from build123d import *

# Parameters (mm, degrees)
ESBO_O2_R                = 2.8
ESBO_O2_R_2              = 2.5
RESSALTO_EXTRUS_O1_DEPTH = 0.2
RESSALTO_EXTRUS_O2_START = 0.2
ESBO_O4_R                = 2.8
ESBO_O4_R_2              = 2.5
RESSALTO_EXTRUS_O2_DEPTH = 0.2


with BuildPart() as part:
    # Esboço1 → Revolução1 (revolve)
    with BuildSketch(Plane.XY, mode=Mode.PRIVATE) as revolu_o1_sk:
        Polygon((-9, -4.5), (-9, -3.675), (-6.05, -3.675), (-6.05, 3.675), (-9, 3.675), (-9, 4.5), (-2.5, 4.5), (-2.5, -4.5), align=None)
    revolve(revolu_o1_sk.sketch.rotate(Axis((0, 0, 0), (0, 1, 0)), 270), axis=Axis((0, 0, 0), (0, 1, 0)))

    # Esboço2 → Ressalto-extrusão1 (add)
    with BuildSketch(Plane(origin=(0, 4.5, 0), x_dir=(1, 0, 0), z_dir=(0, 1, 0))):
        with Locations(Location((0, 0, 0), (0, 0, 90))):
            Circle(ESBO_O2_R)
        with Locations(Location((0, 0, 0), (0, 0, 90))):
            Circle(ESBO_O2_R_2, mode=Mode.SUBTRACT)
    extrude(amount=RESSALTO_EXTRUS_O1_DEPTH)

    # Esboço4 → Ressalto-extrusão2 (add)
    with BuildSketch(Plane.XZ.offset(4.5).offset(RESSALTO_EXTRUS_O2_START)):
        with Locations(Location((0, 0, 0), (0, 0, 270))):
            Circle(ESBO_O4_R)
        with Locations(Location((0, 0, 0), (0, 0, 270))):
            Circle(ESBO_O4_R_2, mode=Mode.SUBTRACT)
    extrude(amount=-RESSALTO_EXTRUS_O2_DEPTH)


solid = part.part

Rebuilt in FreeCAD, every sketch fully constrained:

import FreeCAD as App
import Part
import Sketcher
Q = App.Units.Quantity


def add_polygon(sketch, points):
    """Adds a closed chain of lines whose ends are joined by coincident constraints."""
    first, n = sketch.GeometryCount, len(points)
    for a, b in zip(points, points[1:] + points[:1]):
        sketch.addGeometry(Part.LineSegment(App.Vector(*a, 0), App.Vector(*b, 0)), False)
    for i in range(n):
        sketch.addConstraint(Sketcher.Constraint("Coincident", first + i, 2, first + (i + 1) % n, 1))

doc = App.newDocument("Part")
params = doc.addObject("Spreadsheet::Sheet", "Params")
for row, (alias, value) in enumerate([
    ("sketch1_height", "9 mm"),
    ("sketch1_width", "6.5 mm"),
    ("sketch1_width2", "2.95 mm"),
    ("sketch1_height2", "7.35 mm"),
    ("revolution_angle", "360 deg"),
    ("sketch2_diameter", "5 mm"),
    ("sketch2_diameter2", "5.6 mm"),
    ("pad1_length", "0.2 mm"),
    ("sketch3_diameter", "5 mm"),
    ("sketch3_diameter2", "5.6 mm"),
    ("pad2_length", "0.2 mm"),
], start=1):
    params.set(f"A{row}", alias)
    params.set(f"B{row}", "=" + value)
    params.setAlias(f"B{row}", alias)

body = doc.addObject("PartDesign::Body", "Body")

# Sketch on XY plane
sketch1 = doc.addObject("Sketcher::SketchObject", "Sketch")
body.addObject(sketch1)
sketch1.AttachmentSupport = (doc.XY_Plane, [""])
sketch1.MapMode = "FlatFace"
add_polygon(sketch1, [(-9, -3.7), (-9, -4.5), (-2.5, -4.5), (-2.5, 4.5), (-9, 4.5), (-9, 3.7), (-6, 3.7), (-6, -3.7)])  # lines 0-7
sketch1.addConstraint(Sketcher.Constraint("Vertical", 0))
sketch1.addConstraint(Sketcher.Constraint("Horizontal", 1))
sketch1.addConstraint(Sketcher.Constraint("Vertical", 2))
sketch1.addConstraint(Sketcher.Constraint("Horizontal", 3))
sketch1.addConstraint(Sketcher.Constraint("Vertical", 4))
sketch1.addConstraint(Sketcher.Constraint("Horizontal", 5))
sketch1.addConstraint(Sketcher.Constraint("Vertical", 6))
sketch1.addConstraint(Sketcher.Constraint("Horizontal", 7))
sketch1.addConstraint(Sketcher.Constraint("Symmetric", 0, 2, 3, 2, -1))
sketch1.addConstraint(Sketcher.Constraint("Equal", 0, 4))
sketch1.addConstraint(Sketcher.Constraint("DistanceY", 2, 1, 2, 2, Q("9 mm")))
sketch1.addConstraint(Sketcher.Constraint("DistanceX", 1, 1, 1, 2, Q("6.5 mm")))
sketch1.addConstraint(Sketcher.Constraint("DistanceX", 0, 2, -1, 1, Q("9 mm")))
sketch1.addConstraint(Sketcher.Constraint("DistanceX", 5, 1, 5, 2, Q("2.95 mm")))
sketch1.addConstraint(Sketcher.Constraint("DistanceY", 6, 2, 6, 1, Q("7.35 mm")))
sketch1.setExpression("Constraints[18]", "Params.sketch1_height")
sketch1.setExpression("Constraints[19]", "Params.sketch1_width")
sketch1.setExpression("Constraints[21]", "Params.sketch1_width2")
sketch1.setExpression("Constraints[22]", "Params.sketch1_height2")
revolution = doc.addObject("PartDesign::Revolution", "Revolution")
body.addObject(revolution)
revolution.Profile = sketch1
revolution.ReferenceAxis = (sketch1, ["V_Axis"])
revolution.setExpression("Angle", "Params.revolution_angle")

# Sketch on XZ plane
sketch2 = doc.addObject("Sketcher::SketchObject", "Sketch001")
body.addObject(sketch2)
sketch2.AttachmentSupport = (doc.XZ_Plane, [""])
sketch2.MapMode = "FlatFace"
sketch2.AttachmentOffset = App.Placement(App.Vector(0, 0, -4.5), App.Rotation())
sketch2.addGeometry(Part.Circle(App.Vector(0, 0, 0), App.Vector(0, 0, 1), 2.8), False)
sketch2.addGeometry(Part.Circle(App.Vector(0, 0, 0), App.Vector(0, 0, 1), 2.5), False)
sketch2.addConstraint(Sketcher.Constraint("Coincident", 0, 3, -1, 1))
sketch2.addConstraint(Sketcher.Constraint("Coincident", 1, 3, -1, 1))
sketch2.addConstraint(Sketcher.Constraint("Diameter", 1, Q("5 mm")))
sketch2.addConstraint(Sketcher.Constraint("Diameter", 0, Q("5.6 mm")))
sketch2.setExpression("Constraints[2]", "Params.sketch2_diameter")
sketch2.setExpression("Constraints[3]", "Params.sketch2_diameter2")
pad1 = doc.addObject("PartDesign::Pad", "Pad")
body.addObject(pad1)
pad1.Profile = sketch2
pad1.setExpression("Length", "Params.pad1_length")
pad1.Reversed = True

# Sketch on XZ plane
sketch3 = doc.addObject("Sketcher::SketchObject", "Sketch002")
body.addObject(sketch3)
sketch3.AttachmentSupport = (doc.XZ_Plane, [""])
sketch3.MapMode = "FlatFace"
sketch3.AttachmentOffset = App.Placement(App.Vector(0, 0, 4.7), App.Rotation())
sketch3.addGeometry(Part.Circle(App.Vector(0, 0, 0), App.Vector(0, 0, 1), 2.8), False)
sketch3.addGeometry(Part.Circle(App.Vector(0, 0, 0), App.Vector(0, 0, 1), 2.5), False)
sketch3.addConstraint(Sketcher.Constraint("Coincident", 0, 3, -1, 1))
sketch3.addConstraint(Sketcher.Constraint("Coincident", 1, 3, -1, 1))
sketch3.addConstraint(Sketcher.Constraint("Diameter", 1, Q("5 mm")))
sketch3.addConstraint(Sketcher.Constraint("Diameter", 0, Q("5.6 mm")))
sketch3.setExpression("Constraints[2]", "Params.sketch3_diameter")
sketch3.setExpression("Constraints[3]", "Params.sketch3_diameter2")
pad2 = doc.addObject("PartDesign::Pad", "Pad001")
body.addObject(pad2)
pad2.Profile = sketch3
pad2.setExpression("Length", "Params.pad2_length")
pad2.Reversed = True

doc.recompute()
